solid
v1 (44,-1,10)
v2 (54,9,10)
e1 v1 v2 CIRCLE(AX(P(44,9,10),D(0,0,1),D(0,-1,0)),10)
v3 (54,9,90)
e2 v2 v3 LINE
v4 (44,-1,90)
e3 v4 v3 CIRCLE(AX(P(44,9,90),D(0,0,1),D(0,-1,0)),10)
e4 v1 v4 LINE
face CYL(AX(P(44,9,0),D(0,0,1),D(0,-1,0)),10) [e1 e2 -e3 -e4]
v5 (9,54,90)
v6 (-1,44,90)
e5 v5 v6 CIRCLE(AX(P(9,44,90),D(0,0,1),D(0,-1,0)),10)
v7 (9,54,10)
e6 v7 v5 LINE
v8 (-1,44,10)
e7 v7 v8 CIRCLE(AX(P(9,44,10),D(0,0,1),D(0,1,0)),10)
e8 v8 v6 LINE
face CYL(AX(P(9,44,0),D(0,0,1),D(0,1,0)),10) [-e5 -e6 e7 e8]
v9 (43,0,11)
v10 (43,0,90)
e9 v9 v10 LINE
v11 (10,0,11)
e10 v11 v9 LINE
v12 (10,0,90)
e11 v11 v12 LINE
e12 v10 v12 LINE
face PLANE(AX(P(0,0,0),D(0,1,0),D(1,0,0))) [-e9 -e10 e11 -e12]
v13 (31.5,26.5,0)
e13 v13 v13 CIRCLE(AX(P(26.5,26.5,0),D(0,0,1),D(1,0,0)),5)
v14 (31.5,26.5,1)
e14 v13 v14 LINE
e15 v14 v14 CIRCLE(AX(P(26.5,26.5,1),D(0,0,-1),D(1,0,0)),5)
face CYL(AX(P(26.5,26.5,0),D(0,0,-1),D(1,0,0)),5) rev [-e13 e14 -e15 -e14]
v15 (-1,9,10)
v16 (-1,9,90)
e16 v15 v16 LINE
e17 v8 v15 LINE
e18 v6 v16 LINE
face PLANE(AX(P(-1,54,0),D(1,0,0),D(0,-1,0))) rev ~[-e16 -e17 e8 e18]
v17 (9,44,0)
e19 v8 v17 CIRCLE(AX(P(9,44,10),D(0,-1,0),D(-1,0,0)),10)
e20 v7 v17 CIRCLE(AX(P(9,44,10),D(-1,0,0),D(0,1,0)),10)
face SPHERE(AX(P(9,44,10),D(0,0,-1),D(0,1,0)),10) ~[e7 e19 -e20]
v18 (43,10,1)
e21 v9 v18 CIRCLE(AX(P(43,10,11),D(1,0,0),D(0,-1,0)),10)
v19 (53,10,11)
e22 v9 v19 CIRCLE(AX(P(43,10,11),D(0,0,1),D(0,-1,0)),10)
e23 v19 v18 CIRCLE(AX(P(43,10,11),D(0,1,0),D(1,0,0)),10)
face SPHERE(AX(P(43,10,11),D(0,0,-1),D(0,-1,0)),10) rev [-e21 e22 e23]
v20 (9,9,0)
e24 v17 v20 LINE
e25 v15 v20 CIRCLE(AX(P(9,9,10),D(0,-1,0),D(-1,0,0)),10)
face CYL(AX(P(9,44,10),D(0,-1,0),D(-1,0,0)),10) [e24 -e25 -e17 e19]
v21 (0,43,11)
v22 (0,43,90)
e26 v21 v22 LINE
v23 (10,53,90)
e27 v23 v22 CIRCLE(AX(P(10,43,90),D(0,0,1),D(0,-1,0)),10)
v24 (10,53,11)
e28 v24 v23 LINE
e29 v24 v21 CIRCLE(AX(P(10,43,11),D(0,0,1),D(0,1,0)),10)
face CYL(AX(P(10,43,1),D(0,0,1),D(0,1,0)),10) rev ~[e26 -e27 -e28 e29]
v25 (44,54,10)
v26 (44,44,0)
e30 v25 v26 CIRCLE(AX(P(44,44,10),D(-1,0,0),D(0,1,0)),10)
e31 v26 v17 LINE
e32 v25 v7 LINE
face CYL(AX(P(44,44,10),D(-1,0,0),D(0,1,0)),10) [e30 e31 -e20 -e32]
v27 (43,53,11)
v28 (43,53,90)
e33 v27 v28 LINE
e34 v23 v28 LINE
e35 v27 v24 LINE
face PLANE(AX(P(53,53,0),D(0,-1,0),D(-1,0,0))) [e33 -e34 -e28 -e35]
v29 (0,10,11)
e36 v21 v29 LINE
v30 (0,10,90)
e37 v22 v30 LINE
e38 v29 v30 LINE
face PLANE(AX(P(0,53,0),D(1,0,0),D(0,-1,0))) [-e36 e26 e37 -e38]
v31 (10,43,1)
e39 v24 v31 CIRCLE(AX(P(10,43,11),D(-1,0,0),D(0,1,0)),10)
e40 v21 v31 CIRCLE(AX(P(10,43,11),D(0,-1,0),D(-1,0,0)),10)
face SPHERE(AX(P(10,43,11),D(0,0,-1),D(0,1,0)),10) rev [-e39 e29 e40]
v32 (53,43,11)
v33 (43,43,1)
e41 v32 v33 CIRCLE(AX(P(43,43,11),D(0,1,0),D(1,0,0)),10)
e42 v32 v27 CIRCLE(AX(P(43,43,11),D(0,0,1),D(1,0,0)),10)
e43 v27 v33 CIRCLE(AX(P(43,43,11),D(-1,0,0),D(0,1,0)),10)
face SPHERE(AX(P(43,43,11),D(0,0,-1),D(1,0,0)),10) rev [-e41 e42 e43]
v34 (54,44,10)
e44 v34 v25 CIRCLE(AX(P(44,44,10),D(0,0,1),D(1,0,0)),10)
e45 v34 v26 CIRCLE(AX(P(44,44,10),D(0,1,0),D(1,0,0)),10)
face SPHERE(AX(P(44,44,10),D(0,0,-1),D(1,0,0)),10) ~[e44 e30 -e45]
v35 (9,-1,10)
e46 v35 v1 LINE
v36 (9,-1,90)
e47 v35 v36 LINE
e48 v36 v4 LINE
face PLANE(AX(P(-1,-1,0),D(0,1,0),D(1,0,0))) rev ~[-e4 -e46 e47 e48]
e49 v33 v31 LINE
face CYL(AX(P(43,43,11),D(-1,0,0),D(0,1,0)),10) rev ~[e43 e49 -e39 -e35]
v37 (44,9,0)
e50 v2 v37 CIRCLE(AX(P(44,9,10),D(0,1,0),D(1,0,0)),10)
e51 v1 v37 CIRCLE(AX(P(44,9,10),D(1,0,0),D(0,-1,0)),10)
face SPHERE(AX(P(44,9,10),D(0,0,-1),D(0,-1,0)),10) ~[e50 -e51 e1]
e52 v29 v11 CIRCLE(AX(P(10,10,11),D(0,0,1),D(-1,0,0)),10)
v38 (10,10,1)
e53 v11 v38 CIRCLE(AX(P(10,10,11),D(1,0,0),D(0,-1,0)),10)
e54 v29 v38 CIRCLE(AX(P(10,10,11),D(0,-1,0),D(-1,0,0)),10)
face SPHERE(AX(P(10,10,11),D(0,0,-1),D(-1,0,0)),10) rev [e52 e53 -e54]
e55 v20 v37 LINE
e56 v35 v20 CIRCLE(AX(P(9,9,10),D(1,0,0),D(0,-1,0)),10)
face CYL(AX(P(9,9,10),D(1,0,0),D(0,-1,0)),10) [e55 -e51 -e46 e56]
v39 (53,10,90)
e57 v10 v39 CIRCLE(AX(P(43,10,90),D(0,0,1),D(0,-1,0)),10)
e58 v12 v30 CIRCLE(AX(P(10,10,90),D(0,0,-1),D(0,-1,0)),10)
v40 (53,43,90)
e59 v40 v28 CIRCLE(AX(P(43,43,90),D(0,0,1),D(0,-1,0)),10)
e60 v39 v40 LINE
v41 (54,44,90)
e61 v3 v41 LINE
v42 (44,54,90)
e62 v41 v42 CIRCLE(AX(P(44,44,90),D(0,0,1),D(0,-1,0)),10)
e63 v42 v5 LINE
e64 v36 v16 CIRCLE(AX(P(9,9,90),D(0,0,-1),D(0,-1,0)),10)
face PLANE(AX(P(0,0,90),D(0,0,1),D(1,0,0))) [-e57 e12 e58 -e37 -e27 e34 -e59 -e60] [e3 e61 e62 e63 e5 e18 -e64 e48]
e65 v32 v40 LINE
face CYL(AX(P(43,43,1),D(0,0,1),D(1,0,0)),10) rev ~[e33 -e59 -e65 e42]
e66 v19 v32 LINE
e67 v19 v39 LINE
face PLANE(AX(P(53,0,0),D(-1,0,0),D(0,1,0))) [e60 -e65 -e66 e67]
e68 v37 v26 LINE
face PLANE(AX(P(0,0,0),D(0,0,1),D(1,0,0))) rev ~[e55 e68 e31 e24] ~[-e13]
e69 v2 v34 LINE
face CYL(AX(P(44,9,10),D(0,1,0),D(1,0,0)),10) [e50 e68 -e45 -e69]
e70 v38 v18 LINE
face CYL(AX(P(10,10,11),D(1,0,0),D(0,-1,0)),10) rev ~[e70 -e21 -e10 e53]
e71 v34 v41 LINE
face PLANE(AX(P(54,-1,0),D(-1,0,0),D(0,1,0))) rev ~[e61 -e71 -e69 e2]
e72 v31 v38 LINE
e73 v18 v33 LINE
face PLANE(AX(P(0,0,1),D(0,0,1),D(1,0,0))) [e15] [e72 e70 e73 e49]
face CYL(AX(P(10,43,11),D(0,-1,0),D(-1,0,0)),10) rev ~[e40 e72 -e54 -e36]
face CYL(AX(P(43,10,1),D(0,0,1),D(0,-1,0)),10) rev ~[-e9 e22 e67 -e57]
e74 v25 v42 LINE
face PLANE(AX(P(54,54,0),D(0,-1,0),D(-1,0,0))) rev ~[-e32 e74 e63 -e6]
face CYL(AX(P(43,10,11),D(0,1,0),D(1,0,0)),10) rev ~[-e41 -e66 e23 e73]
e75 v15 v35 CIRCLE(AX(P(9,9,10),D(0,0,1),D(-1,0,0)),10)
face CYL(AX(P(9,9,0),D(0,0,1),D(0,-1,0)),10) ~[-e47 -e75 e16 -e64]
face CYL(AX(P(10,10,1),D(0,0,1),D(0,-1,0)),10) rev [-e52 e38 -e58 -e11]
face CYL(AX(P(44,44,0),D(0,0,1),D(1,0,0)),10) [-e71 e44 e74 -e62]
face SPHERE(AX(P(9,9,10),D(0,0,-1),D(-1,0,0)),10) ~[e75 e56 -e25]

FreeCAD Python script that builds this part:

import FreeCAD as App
import Part
import Sketcher


def edges_at(feature, points):
    """Names of the edges that pass closest to the given points."""
    edges = feature.Shape.Edges
    near = lambda p: min(range(len(edges)), key=lambda i: edges[i].distToShape(Part.Vertex(*p))[0])
    return sorted({f"Edge{near(p) + 1}" for p in points})

doc = App.newDocument("Part")
params = doc.addObject("Spreadsheet::Sheet", "Params")
for row, (alias, value) in enumerate([
    ("sketch1_width", "53 mm"),
    ("pad1_length", "90 mm"),
    ("sketch2_width", "53 mm"),
    ("pad2_length", "1 mm"),
    ("fillet_radius", "10 mm"),
    ("fillet2_radius", "10 mm"),
    ("fillet3_radius", "10 mm"),
    ("fillet4_radius", "10 mm"),
    ("sketch3_diameter", "10 mm"),
    ("pocket1_length", "1 mm"),
], start=1):
    params.set(f"A{row}", alias)
    params.set(f"B{row}", "=" + value)
    params.setAlias(f"B{row}", alias)

body = doc.addObject("PartDesign::Body", "Body")

sketch1 = body.newObject("Sketcher::SketchObject", "Sketch")
sketch1.AttachmentSupport = (doc.getObject("XY_Plane"), [""])
sketch1.MapMode = "FlatFace"
sketch1.addGeometry([
    Part.LineSegment(App.Vector(-1, -1, 0), App.Vector(54, -1, 0)),
    Part.LineSegment(App.Vector(54, -1, 0), App.Vector(54, 54, 0)),
    Part.LineSegment(App.Vector(54, 54, 0), App.Vector(-1, 54, 0)),
    Part.LineSegment(App.Vector(-1, 54, 0), App.Vector(-1, -1, 0)),
    Part.LineSegment(App.Vector(53, 0, 0), App.Vector(0, 0, 0)),
    Part.LineSegment(App.Vector(0, 0, 0), App.Vector(0, 53, 0)),
    Part.LineSegment(App.Vector(0, 53, 0), App.Vector(53, 53, 0)),
    Part.LineSegment(App.Vector(53, 53, 0), App.Vector(53, 0, 0)),
], False)
sketch1.addConstraint([
    Sketcher.Constraint("Coincident", 0, 2, 1, 1),
    Sketcher.Constraint("Coincident", 1, 2, 2, 1),
    Sketcher.Constraint("Coincident", 2, 2, 3, 1),
    Sketcher.Constraint("Coincident", 3, 2, 0, 1),
    Sketcher.Constraint("Coincident", 4, 2, 5, 1),
    Sketcher.Constraint("Coincident", 5, 2, 6, 1),
    Sketcher.Constraint("Coincident", 6, 2, 7, 1),
    Sketcher.Constraint("Coincident", 7, 2, 4, 1),
    Sketcher.Constraint("Horizontal", 0),
    Sketcher.Constraint("Vertical", 1),
    Sketcher.Constraint("Horizontal", 2),
    Sketcher.Constraint("Vertical", 3),
    Sketcher.Constraint("Horizontal", 4),
    Sketcher.Constraint("Vertical", 5),
    Sketcher.Constraint("Horizontal", 6),
    Sketcher.Constraint("Vertical", 7),
    Sketcher.Constraint("Coincident", 4, 2, -1, 1),
    Sketcher.Constraint("Equal", 2, 1),
    Sketcher.Constraint("Equal", 6, 5),
    Sketcher.Constraint("DistanceX", 4, 2, 4, 1, 53.0),
    Sketcher.Constraint("DistanceY", 0, 2, -1, 1, 1.0),
    Sketcher.Constraint("DistanceX", 2, 2, -1, 1, 1.0),
    Sketcher.Constraint("DistanceY", 5, 2, 2, 2, 1.0),
])
sketch1.setExpression("Constraints[19]", "Params.sketch1_width")
pad1 = body.newObject("PartDesign::Pad", "Pad")
pad1.Profile = sketch1
pad1.setExpression("Length", "Params.pad1_length")

sketch2 = body.newObject("Sketcher::SketchObject", "Sketch001")
sketch2.AttachmentSupport = (doc.getObject("XY_Plane"), [""])
sketch2.MapMode = "FlatFace"
sketch2.addGeometry([
    Part.LineSegment(App.Vector(0, 53, 0), App.Vector(0, 0, 0)),
    Part.LineSegment(App.Vector(0, 0, 0), App.Vector(53, 0, 0)),
    Part.LineSegment(App.Vector(53, 0, 0), App.Vector(53, 53, 0)),
    Part.LineSegment(App.Vector(53, 53, 0), App.Vector(0, 53, 0)),
], False)
sketch2.addConstraint([
    Sketcher.Constraint("Coincident", 0, 2, 1, 1),
    Sketcher.Constraint("Coincident", 1, 2, 2, 1),
    Sketcher.Constraint("Coincident", 2, 2, 3, 1),
    Sketcher.Constraint("Coincident", 3, 2, 0, 1),
    Sketcher.Constraint("Vertical", 0),
    Sketcher.Constraint("Horizontal", 1),
    Sketcher.Constraint("Vertical", 2),
    Sketcher.Constraint("Horizontal", 3),
    Sketcher.Constraint("Coincident", 0, 2, -1, 1),
    Sketcher.Constraint("Equal", 3, 0),
    Sketcher.Constraint("DistanceX", 1, 1, 1, 2, 53.0),
])
sketch2.setExpression("Constraints[10]", "Params.sketch2_width")
pad2 = body.newObject("PartDesign::Pad", "Pad001")
pad2.Profile = sketch2
pad2.setExpression("Length", "Params.pad2_length")
doc.recompute()

fillet = body.newObject("PartDesign::Fillet", "Fillet")
fillet.Base = (pad2, edges_at(pad2, [
    (0, 53, 45.5),
    (53, 53, 45.5),
    (53, 0, 45.5),
    (0, 0, 45.5),
]))
fillet.setExpression("Radius", "Params.fillet_radius")
doc.recompute()

fillet2 = body.newObject("PartDesign::Fillet", "Fillet001")
fillet2.Base = (fillet, edges_at(fillet, [
    (50.071, 50.071, 1),
    (53, 26.5, 1),
    (50.071, 2.929, 1),
    (26.5, 0, 1),
    (2.929, 2.929, 1),
    (0, 26.5, 1),
    (2.929, 50.071, 1),
    (26.5, 53, 1),
]))
fillet2.setExpression("Radius", "Params.fillet2_radius")
doc.recompute()

fillet3 = body.newObject("PartDesign::Fillet", "Fillet002")
fillet3.Base = (fillet2, edges_at(fillet2, [
    (-1, 54, 45),
    (54, 54, 45),
    (54, -1, 45),
    (-1, -1, 45),
]))
fillet3.setExpression("Radius", "Params.fillet3_radius")
doc.recompute()

fillet4 = body.newObject("PartDesign::Fillet", "Fillet003")
fillet4.Base = (fillet3, edges_at(fillet3, [
    (54, 26.5, 0),
    (51.071, 51.071, 0),
    (26.5, 54, 0),
    (1.929, 51.071, 0),
    (-1, 26.5, 0),
    (1.929, 1.929, 0),
    (26.5, -1, 0),
    (51.071, 1.929, 0),
]))
fillet4.setExpression("Radius", "Params.fillet4_radius")

sketch3 = body.newObject("Sketcher::SketchObject", "Sketch002")
sketch3.AttachmentSupport = (doc.getObject("XY_Plane"), [""])
sketch3.MapMode = "FlatFace"
sketch3.addGeometry(Part.Circle(App.Vector(26, 26, 0), App.Vector(0, 0, 1), 5), False)
sketch3.addConstraint([
    Sketcher.Constraint("Diameter", 0, 10.0),
    Sketcher.Constraint("DistanceX", -1, 1, 0, 3, 26.5),
    Sketcher.Constraint("DistanceY", -1, 1, 0, 3, 26.5),
])
sketch3.setExpression("Constraints[0]", "Params.sketch3_diameter")
pocket1 = body.newObject("PartDesign::Pocket", "Pocket")
pocket1.Profile = sketch3
pocket1.setExpression("Length", "Params.pocket1_length")
pocket1.Reversed = True

doc.recompute()
